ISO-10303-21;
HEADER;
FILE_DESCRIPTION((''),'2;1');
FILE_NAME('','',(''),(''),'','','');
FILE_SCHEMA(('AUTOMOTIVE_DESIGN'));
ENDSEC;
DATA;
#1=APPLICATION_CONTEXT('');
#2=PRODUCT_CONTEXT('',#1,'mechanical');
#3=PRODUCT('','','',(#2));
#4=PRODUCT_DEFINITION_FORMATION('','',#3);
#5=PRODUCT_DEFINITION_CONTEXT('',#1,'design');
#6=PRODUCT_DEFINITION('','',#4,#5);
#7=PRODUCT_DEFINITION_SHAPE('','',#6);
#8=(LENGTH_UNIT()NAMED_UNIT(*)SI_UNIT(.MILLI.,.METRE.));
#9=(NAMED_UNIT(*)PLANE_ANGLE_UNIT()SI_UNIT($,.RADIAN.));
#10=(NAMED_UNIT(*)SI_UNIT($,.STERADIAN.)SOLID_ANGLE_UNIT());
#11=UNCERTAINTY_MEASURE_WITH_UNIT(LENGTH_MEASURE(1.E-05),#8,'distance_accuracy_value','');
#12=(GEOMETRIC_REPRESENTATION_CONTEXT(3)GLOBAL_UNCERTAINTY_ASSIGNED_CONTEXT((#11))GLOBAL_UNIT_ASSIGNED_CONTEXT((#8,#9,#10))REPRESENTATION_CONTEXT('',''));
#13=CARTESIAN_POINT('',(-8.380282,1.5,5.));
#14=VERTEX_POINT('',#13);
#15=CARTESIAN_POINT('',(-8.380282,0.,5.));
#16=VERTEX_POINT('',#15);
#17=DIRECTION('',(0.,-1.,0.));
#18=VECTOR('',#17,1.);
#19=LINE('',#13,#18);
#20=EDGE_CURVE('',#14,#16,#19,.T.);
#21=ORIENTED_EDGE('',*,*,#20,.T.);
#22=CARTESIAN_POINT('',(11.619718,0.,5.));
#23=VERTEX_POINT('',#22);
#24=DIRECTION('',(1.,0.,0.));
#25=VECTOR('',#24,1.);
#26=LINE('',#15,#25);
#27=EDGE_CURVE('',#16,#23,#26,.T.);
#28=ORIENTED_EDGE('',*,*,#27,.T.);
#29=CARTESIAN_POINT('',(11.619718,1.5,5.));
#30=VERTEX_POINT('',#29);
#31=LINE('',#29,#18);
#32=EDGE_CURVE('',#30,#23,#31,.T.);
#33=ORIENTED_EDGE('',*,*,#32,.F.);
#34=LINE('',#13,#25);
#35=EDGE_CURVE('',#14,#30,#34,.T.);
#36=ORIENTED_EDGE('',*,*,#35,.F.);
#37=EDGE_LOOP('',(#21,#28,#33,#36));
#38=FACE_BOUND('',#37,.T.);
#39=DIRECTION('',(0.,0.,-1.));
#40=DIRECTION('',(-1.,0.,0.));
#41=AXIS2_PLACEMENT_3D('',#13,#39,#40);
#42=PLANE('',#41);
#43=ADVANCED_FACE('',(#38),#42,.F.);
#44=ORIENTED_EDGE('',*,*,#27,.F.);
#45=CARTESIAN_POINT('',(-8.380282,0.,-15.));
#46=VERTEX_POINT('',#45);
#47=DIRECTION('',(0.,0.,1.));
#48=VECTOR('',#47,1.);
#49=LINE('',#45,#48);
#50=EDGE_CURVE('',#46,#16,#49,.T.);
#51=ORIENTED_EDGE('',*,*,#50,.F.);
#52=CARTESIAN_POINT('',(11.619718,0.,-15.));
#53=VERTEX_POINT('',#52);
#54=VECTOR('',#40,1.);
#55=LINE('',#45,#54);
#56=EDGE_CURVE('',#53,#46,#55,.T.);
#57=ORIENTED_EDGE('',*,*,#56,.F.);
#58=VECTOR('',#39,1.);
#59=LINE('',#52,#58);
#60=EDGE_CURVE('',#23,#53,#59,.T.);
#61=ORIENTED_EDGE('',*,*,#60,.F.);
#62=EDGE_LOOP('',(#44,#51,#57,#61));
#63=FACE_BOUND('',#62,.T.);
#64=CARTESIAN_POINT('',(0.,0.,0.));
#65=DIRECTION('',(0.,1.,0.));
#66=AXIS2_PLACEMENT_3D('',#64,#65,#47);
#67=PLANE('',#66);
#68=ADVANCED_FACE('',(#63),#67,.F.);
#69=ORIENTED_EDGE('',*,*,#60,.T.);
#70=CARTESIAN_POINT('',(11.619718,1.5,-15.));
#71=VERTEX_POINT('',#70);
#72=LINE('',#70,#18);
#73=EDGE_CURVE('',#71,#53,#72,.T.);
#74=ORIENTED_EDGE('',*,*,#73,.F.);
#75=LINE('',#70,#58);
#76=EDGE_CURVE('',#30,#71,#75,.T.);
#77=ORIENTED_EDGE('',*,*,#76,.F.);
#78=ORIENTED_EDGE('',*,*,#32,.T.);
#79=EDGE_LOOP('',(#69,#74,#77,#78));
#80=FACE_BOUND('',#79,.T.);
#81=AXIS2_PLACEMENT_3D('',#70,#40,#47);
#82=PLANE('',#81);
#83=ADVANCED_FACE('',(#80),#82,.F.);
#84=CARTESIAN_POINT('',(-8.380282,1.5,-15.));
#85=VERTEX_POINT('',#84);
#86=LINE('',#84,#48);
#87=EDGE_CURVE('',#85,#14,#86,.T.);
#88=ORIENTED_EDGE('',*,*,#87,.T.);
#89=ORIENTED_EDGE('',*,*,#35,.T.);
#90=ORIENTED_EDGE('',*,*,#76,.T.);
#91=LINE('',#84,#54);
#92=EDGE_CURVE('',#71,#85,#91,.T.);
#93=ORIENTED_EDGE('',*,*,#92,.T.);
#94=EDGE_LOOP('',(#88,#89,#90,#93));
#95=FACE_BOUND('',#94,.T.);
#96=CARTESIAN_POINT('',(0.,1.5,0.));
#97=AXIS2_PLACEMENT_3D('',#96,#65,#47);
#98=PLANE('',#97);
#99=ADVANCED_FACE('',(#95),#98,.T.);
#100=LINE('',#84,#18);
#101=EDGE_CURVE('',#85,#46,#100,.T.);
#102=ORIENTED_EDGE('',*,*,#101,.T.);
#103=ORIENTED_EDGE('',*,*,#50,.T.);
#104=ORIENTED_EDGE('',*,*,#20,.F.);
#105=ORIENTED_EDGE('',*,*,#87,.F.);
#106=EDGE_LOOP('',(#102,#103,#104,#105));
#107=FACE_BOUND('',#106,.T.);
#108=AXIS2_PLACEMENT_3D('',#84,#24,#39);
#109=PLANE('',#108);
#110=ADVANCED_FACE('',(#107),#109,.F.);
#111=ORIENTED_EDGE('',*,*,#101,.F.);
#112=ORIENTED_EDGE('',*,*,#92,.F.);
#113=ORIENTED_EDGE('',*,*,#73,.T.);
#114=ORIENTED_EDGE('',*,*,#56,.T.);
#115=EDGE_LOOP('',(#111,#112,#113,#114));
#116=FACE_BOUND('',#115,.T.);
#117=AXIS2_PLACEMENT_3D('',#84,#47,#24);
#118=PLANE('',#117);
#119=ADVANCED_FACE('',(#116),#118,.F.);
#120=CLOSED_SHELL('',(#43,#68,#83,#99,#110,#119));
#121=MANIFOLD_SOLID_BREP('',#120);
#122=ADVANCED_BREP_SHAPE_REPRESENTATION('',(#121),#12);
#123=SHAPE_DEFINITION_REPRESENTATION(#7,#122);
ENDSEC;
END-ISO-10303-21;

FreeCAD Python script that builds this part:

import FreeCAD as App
import Part
import Sketcher
from FreeCAD import Vector
Q = App.Units.Quantity

doc = App.newDocument("Part")
body = doc.addObject("PartDesign::Body", "Body")

# Sketch on XZ plane
sketch1 = body.newObject("Sketcher::SketchObject", "Sketch")
sketch1.AttachmentSupport = (doc.getObject("XZ_Plane"), [""])
sketch1.MapMode = "FlatFace"
sketch1.addGeometry([
    Part.LineSegment(Vector(-8, -15, 0), Vector(-8, 5, 0)),
    Part.LineSegment(Vector(-8, 5, 0), Vector(12, 5, 0)),
    Part.LineSegment(Vector(12, 5, 0), Vector(12, -15, 0)),
    Part.LineSegment(Vector(12, -15, 0), Vector(-8, -15, 0)),
], False)
sketch1.addConstraint([
    Sketcher.Constraint("Coincident", 0, 2, 1, 1),
    Sketcher.Constraint("Coincident", 1, 2, 2, 1),
    Sketcher.Constraint("Coincident", 2, 2, 3, 1),
    Sketcher.Constraint("Coincident", 3, 2, 0, 1),
    Sketcher.Constraint("Vertical", 0),
    Sketcher.Constraint("Horizontal", 1),
    Sketcher.Constraint("Vertical", 2),
    Sketcher.Constraint("Horizontal", 3),
    Sketcher.Constraint("Equal", 3, 0),
    Sketcher.Constraint("DistanceX", 1, 1, 1, 2, Q("20 mm")),
    Sketcher.Constraint("DistanceY", -1, 1, 0, 2, Q("5 mm")),
    Sketcher.Constraint("DistanceX", 0, 2, -1, 1, Q("8.380282 mm")),
])
pad1 = body.newObject("PartDesign::Pad", "Pad")
pad1.Profile = sketch1
pad1.Length = 1.5
pad1.Reversed = True

doc.recompute()
